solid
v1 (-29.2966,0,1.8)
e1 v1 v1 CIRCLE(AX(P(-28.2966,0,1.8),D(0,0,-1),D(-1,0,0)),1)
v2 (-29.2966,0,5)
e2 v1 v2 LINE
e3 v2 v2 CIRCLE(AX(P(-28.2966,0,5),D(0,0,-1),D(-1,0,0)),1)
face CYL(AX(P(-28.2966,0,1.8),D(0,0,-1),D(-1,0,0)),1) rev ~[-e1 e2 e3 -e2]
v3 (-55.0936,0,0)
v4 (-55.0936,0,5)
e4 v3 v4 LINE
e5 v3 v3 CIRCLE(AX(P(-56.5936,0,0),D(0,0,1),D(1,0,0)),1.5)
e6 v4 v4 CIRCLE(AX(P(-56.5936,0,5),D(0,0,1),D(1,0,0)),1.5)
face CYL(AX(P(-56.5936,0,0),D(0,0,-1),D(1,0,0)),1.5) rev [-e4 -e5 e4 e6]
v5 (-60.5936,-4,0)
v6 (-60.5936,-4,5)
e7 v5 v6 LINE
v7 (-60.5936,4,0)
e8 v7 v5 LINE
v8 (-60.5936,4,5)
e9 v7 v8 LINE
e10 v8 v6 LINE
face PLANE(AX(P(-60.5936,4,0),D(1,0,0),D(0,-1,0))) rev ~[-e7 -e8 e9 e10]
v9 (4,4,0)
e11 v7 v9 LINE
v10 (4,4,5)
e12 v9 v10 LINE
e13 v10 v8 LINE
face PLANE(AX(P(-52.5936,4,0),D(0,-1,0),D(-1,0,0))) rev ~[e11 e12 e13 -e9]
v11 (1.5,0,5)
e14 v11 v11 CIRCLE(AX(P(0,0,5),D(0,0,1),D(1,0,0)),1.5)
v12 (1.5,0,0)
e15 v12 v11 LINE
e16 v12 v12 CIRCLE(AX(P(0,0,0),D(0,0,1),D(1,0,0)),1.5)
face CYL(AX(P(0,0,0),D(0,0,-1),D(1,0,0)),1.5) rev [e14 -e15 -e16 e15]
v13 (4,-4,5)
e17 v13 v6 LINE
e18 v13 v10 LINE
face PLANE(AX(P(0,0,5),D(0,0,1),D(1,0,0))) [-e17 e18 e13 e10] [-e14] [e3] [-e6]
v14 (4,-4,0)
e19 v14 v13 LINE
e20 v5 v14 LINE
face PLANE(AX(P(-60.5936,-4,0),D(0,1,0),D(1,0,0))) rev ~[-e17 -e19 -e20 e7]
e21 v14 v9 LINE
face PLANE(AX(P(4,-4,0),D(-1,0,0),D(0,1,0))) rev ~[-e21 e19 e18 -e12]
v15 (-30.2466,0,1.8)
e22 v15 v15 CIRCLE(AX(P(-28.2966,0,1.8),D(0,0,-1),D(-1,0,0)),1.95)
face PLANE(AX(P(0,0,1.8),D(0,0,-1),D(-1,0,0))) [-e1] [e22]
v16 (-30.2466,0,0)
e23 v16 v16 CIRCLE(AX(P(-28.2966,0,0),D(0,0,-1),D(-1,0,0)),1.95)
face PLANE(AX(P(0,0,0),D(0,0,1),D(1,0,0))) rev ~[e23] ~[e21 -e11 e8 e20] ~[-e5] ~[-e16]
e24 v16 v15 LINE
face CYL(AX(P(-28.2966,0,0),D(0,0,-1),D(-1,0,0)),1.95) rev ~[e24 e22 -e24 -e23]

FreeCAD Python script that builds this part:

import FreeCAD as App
import Part
import Sketcher
from FreeCAD import Vector

doc = App.newDocument("Part")
body = doc.addObject("PartDesign::Body", "Body")

sketch1 = body.newObject("Sketcher::SketchObject", "Sketch")
sketch1.AttachmentSupport = (doc.getObject("XY_Plane"), [""])
sketch1.MapMode = "FlatFace"
sketch1.addGeometry(Part.LineSegment(Vector(-60.6, -4, 0), Vector(4, -4, 0)), False)
sketch1.addGeometry(Part.LineSegment(Vector(4, -4, 0), Vector(4, 4, 0)), False)
sketch1.addGeometry(Part.LineSegment(Vector(4, 4, 0), Vector(-60.6, 4, 0)), False)
sketch1.addGeometry(Part.LineSegment(Vector(-60.6, 4, 0), Vector(-60.6, -4, 0)), False)
sketch1.addGeometry(Part.Circle(Vector(-56.6, 0, 0), Vector(0, 0, 1), 1.5), False)
sketch1.addGeometry(Part.Circle(Vector(0, 0, 0), Vector(0, 0, 1), 1.5), False)
sketch1.addConstraint(Sketcher.Constraint("Coincident", 0, 2, 1, 1))
sketch1.addConstraint(Sketcher.Constraint("Coincident", 1, 2, 2, 1))
sketch1.addConstraint(Sketcher.Constraint("Coincident", 2, 2, 3, 1))
sketch1.addConstraint(Sketcher.Constraint("Coincident", 3, 2, 0, 1))
sketch1.addConstraint(Sketcher.Constraint("Horizontal", 0))
sketch1.addConstraint(Sketcher.Constraint("Vertical", 1))
sketch1.addConstraint(Sketcher.Constraint("Horizontal", 2))
sketch1.addConstraint(Sketcher.Constraint("Vertical", 3))
sketch1.addConstraint(Sketcher.Constraint("Coincident", 5, 3, -1, 1))
sketch1.addConstraint(Sketcher.Constraint("Equal", 4, 5))
sketch1.addConstraint(Sketcher.Constraint("PointOnObject", 4, 3, -1))
sketch1.addConstraint(Sketcher.Constraint("Diameter", 4, 3.0))
sketch1.addConstraint(Sketcher.Constraint("DistanceY", 1, 1, 1, 2, 8.0))
sketch1.addConstraint(Sketcher.Constraint("DistanceX", -1, 1, 0, 2, 4.0))
sketch1.addConstraint(Sketcher.Constraint("DistanceY", 0, 2, -1, 1, 4.0))
sketch1.addConstraint(Sketcher.Constraint("DistanceX", 2, 2, 4, 3, 4.0))
sketch1.addConstraint(Sketcher.Constraint("DistanceX", 0, 1, 0, 2, 64.5936))
pad1 = body.newObject("PartDesign::Pad", "Pad")
pad1.Profile = sketch1
pad1.Length = 5

sketch2 = body.newObject("Sketcher::SketchObject", "Sketch001")
sketch2.AttachmentSupport = (doc.getObject("XY_Plane"), [""])
sketch2.MapMode = "FlatFace"
sketch2.addGeometry(Part.Circle(Vector(-28.3, 0, 0), Vector(0, 0, 1), 1.9), False)
sketch2.addConstraint(Sketcher.Constraint("PointOnObject", 0, 3, -1))
sketch2.addConstraint(Sketcher.Constraint("Diameter", 0, 3.9))
sketch2.addConstraint(Sketcher.Constraint("DistanceX", 0, 3, -1, 1, 28.2966))
pocket1 = body.newObject("PartDesign::Pocket", "Pocket")
pocket1.Profile = sketch2
pocket1.Length = 1.8
pocket1.Reversed = True

sketch3 = body.newObject("Sketcher::SketchObject", "Sketch002")
sketch3.AttachmentSupport = (doc.getObject("XY_Plane"), [""])
sketch3.MapMode = "FlatFace"
sketch3.AttachmentOffset = App.Placement(Vector(0, 0, 1.8), App.Rotation())
sketch3.addGeometry(Part.Circle(Vector(-28.3, 0, 0), Vector(0, 0, 1), 1), False)
sketch3.addConstraint(Sketcher.Constraint("PointOnObject", 0, 3, -1))
sketch3.addConstraint(Sketcher.Constraint("Diameter", 0, 2.0))
sketch3.addConstraint(Sketcher.Constraint("DistanceX", 0, 3, -1, 1, 28.2966))
pocket2 = body.newObject("PartDesign::Pocket", "Pocket001")
pocket2.Profile = sketch3
pocket2.Type = "ThroughAll"
pocket2.Reversed = True

doc.recompute()
